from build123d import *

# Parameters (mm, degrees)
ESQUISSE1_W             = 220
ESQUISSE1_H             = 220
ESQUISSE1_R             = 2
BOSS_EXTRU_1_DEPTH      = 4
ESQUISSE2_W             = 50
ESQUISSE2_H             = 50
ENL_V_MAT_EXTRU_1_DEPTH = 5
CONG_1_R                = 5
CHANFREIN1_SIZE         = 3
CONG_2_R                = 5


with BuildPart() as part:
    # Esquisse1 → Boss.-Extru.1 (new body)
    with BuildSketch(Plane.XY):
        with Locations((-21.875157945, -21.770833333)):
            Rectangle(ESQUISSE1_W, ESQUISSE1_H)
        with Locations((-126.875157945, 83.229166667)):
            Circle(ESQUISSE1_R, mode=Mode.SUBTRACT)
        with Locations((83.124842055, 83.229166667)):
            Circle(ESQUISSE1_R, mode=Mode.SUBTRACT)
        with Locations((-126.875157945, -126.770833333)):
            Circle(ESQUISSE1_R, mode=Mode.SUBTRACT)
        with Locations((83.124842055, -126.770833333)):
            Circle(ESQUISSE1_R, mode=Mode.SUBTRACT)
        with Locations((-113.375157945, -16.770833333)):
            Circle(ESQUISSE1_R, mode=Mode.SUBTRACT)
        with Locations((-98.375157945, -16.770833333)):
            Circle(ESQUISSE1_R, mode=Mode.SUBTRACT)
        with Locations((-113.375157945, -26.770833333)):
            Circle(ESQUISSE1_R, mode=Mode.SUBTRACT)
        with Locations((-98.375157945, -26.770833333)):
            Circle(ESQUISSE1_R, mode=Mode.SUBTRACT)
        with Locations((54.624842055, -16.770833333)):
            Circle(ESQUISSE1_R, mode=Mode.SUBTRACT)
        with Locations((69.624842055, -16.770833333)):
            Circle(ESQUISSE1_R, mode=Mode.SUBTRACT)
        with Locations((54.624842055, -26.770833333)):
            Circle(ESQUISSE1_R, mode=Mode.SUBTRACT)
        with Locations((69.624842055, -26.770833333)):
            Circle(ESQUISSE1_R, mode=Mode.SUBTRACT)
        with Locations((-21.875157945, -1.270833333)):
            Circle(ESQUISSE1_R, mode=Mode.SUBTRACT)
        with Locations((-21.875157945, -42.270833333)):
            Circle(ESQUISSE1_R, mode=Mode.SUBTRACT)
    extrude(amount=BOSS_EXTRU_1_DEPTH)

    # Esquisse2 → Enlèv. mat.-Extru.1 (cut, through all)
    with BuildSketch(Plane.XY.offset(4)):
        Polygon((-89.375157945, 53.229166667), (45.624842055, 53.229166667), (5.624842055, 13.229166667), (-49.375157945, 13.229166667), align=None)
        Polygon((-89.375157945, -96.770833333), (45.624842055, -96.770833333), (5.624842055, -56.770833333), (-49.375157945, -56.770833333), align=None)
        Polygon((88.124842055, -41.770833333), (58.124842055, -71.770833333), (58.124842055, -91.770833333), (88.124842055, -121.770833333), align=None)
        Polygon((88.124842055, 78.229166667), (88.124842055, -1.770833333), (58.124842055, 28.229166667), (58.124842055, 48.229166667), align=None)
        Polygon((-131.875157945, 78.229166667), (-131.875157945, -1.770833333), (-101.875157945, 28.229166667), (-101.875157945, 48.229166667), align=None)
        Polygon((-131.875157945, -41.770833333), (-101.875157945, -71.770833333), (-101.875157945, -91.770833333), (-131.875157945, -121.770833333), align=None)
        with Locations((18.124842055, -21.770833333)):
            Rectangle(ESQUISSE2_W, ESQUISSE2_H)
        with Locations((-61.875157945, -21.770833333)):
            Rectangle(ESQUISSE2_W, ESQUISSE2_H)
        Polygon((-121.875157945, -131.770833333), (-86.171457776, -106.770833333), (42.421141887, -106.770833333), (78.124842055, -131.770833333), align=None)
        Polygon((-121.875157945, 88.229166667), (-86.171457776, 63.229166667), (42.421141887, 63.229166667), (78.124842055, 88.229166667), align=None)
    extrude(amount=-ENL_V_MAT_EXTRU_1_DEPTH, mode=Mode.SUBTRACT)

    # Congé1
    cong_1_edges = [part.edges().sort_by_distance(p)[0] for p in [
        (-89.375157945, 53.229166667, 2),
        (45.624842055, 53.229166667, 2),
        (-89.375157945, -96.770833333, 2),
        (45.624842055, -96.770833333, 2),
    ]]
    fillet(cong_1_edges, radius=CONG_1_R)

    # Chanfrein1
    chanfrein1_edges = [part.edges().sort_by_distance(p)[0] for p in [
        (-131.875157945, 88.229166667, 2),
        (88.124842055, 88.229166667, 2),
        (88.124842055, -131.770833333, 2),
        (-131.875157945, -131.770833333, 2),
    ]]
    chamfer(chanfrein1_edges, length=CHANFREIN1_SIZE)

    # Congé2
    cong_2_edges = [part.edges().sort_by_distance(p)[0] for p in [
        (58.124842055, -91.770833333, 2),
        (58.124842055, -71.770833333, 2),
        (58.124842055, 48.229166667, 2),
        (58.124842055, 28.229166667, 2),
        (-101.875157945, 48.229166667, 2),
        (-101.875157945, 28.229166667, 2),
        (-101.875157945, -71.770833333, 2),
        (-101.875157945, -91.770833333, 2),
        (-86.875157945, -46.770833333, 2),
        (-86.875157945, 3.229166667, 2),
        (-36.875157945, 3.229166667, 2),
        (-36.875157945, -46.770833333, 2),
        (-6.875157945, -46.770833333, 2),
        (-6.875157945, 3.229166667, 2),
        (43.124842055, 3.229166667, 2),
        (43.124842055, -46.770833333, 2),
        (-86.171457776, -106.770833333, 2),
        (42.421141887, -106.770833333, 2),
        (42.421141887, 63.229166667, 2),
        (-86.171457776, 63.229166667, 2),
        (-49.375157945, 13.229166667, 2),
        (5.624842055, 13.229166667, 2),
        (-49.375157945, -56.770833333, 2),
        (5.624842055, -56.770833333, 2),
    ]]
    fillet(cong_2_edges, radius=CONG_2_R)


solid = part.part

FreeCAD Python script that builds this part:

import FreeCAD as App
import Part
import Sketcher

V = App.Vector
Q = App.Units.Quantity


def edges_at(feature, points):
    """Names of the edges that pass closest to the given points."""
    edges = feature.Shape.Edges
    near = lambda p: min(range(len(edges)), key=lambda i: edges[i].distToShape(Part.Vertex(*p))[0])
    return sorted({f"Edge{near(p) + 1}" for p in points})

doc = App.newDocument("Part")
body = doc.addObject("PartDesign::Body", "Body")

sketch1 = body.newObject("Sketcher::SketchObject", "Sketch")
sketch1.AttachmentSupport = (doc.getObject("XY_Plane"), [""])
sketch1.MapMode = "FlatFace"
sketch1.addGeometry([
    Part.LineSegment(V(-131.9, 88.2, 0), V(-131.9, -131.8, 0)),
    Part.LineSegment(V(-131.9, -131.8, 0), V(88.1, -131.8, 0)),
    Part.LineSegment(V(88.1, -131.8, 0), V(88.1, 88.2, 0)),
    Part.LineSegment(V(88.1, 88.2, 0), V(-131.9, 88.2, 0)),
    Part.Circle(V(-126.9, -126.8, 0), V(0, 0, 1), 2),
    Part.Circle(V(-113.4, -26.8, 0), V(0, 0, 1), 2),
    Part.Circle(V(-98.4, -26.8, 0), V(0, 0, 1), 2),
    Part.Circle(V(-21.9, -42.3, 0), V(0, 0, 1), 2),
    Part.Circle(V(83.1, -126.8, 0), V(0, 0, 1), 2),
    Part.Circle(V(54.6, -26.8, 0), V(0, 0, 1), 2),
    Part.Circle(V(69.6, -26.8, 0), V(0, 0, 1), 2),
    Part.Circle(V(-113.4, -16.8, 0), V(0, 0, 1), 2),
    Part.Circle(V(-98.4, -16.8, 0), V(0, 0, 1), 2),
    Part.Circle(V(-21.9, -1.3, 0), V(0, 0, 1), 2),
    Part.Circle(V(-126.9, 83.2, 0), V(0, 0, 1), 2),
    Part.Circle(V(54.6, -16.8, 0), V(0, 0, 1), 2),
    Part.Circle(V(69.6, -16.8, 0), V(0, 0, 1), 2),
    Part.Circle(V(83.1, 83.2, 0), V(0, 0, 1), 2),
], False)
sketch1.addConstraint([
    Sketcher.Constraint("Coincident", 0, 2, 1, 1),
    Sketcher.Constraint("Coincident", 1, 2, 2, 1),
    Sketcher.Constraint("Coincident", 2, 2, 3, 1),
    Sketcher.Constraint("Coincident", 3, 2, 0, 1),
    Sketcher.Constraint("Vertical", 0),
    Sketcher.Constraint("Horizontal", 1),
    Sketcher.Constraint("Vertical", 2),
    Sketcher.Constraint("Horizontal", 3),
    Sketcher.Constraint("Equal", 4, 5),
    Sketcher.Constraint("Equal", 5, 6),
    Sketcher.Constraint("Equal", 6, 7),
    Sketcher.Constraint("Equal", 7, 8),
    Sketcher.Constraint("Equal", 8, 9),
    Sketcher.Constraint("Equal", 9, 10),
    Sketcher.Constraint("Equal", 10, 11),
    Sketcher.Constraint("Equal", 11, 12),
    Sketcher.Constraint("Equal", 12, 13),
    Sketcher.Constraint("Equal", 13, 14),
    Sketcher.Constraint("Equal", 14, 15),
    Sketcher.Constraint("Equal", 15, 16),
    Sketcher.Constraint("Equal", 16, 17),
    Sketcher.Constraint("Horizontal", 5, 3, 6, 3),
    Sketcher.Constraint("Horizontal", 4, 3, 8, 3),
    Sketcher.Constraint("Horizontal", 6, 3, 9, 3),
    Sketcher.Constraint("Horizontal", 9, 3, 10, 3),
    Sketcher.Constraint("Horizontal", 11, 3, 12, 3),
    Sketcher.Constraint("Horizontal", 12, 3, 15, 3),
    Sketcher.Constraint("Horizontal", 15, 3, 16, 3),
    Sketcher.Constraint("Horizontal", 14, 3, 17, 3),
    Sketcher.Constraint("Vertical", 5, 3, 11, 3),
    Sketcher.Constraint("Vertical", 6, 3, 12, 3),
    Sketcher.Constraint("Vertical", 7, 3, 13, 3),
    Sketcher.Constraint("Vertical", 4, 3, 14, 3),
    Sketcher.Constraint("Vertical", 9, 3, 15, 3),
    Sketcher.Constraint("Vertical", 10, 3, 16, 3),
    Sketcher.Constraint("Vertical", 8, 3, 17, 3),
    Sketcher.Constraint("Equal", 3, 0),
    Sketcher.Constraint("Diameter", 4, 4.0),
    Sketcher.Constraint("DistanceX", 1, 1, 1, 2, 220.0),
    Sketcher.Constraint("DistanceY", 4, 3, 5, 3, 100.0),
    Sketcher.Constraint("DistanceX", 5, 3, 6, 3, 15.0),
    Sketcher.Constraint("DistanceX", 4, 3, 7, 3, 105.0),
    Sketcher.Constraint("DistanceX", 7, 3, 8, 3, 105.0),
    Sketcher.Constraint("DistanceX", 6, 3, 9, 3, 153.0),
    Sketcher.Constraint("DistanceX", 9, 3, 10, 3, 15.0),
    Sketcher.Constraint("DistanceY", 5, 3, 11, 3, 10.0),
    Sketcher.Constraint("DistanceY", 7, 3, 13, 3, 41.0),
    Sketcher.Constraint("DistanceY", 11, 3, 14, 3, 100.0),
    Sketcher.Constraint("DistanceX", 0, 2, 4, 3, 5.0),
    Sketcher.Constraint("DistanceY", 0, 2, 4, 3, 5.0),
    Sketcher.Constraint("DistanceX", 4, 3, 5, 3, 13.5),
    Sketcher.Constraint("DistanceY", 7, 3, 6, 3, 15.5),
    Sketcher.Constraint("DistanceX", 4, 3, -1, 1, 126.875158),
    Sketcher.Constraint("DistanceY", 4, 3, -1, 1, 126.770833),
])
pad1 = body.newObject("PartDesign::Pad", "Pad")
pad1.Profile = sketch1
pad1.Length = 4

sketch2 = body.newObject("Sketcher::SketchObject", "Sketch001")
sketch2.AttachmentSupport = (doc.getObject("XY_Plane"), [""])
sketch2.MapMode = "FlatFace"
sketch2.AttachmentOffset = App.Placement(V(0, 0, 4), App.Rotation())
sketch2.addGeometry([
    Part.LineSegment(V(46, 53, 0), V(-89, 53, 0)),
    Part.LineSegment(V(-89, 53, 0), V(-49, 13, 0)),
    Part.LineSegment(V(-49, 13, 0), V(6, 13, 0)),
    Part.LineSegment(V(6, 13, 0), V(46, 53, 0)),
    Part.LineSegment(V(-89, -97, 0), V(46, -97, 0)),
    Part.LineSegment(V(46, -97, 0), V(6, -57, 0)),
    Part.LineSegment(V(6, -57, 0), V(-49, -57, 0)),
    Part.LineSegment(V(-49, -57, 0), V(-89, -97, 0)),
    Part.LineSegment(V(88, -42, 0), V(58, -72, 0)),
    Part.LineSegment(V(58, -72, 0), V(58, -92, 0)),
    Part.LineSegment(V(58, -92, 0), V(88, -122, 0)),
    Part.LineSegment(V(88, -122, 0), V(88, -42, 0)),
    Part.LineSegment(V(88, -2, 0), V(88, 78, 0)),
    Part.LineSegment(V(88, 78, 0), V(58, 48, 0)),
    Part.LineSegment(V(58, 48, 0), V(58, 28, 0)),
    Part.LineSegment(V(58, 28, 0), V(88, -2, 0)),
    Part.LineSegment(V(-132, 78, 0), V(-132, -2, 0)),
    Part.LineSegment(V(-132, -2, 0), V(-102, 28, 0)),
    Part.LineSegment(V(-102, 28, 0), V(-102, 48, 0)),
    Part.LineSegment(V(-102, 48, 0), V(-132, 78, 0)),
    Part.LineSegment(V(-102, -72, 0), V(-132, -42, 0)),
    Part.LineSegment(V(-132, -42, 0), V(-132, -122, 0)),
    Part.LineSegment(V(-132, -122, 0), V(-102, -92, 0)),
    Part.LineSegment(V(-102, -92, 0), V(-102, -72, 0)),
    Part.LineSegment(V(-7, 3, 0), V(-7, -47, 0)),
    Part.LineSegment(V(-7, -47, 0), V(43, -47, 0)),
    Part.LineSegment(V(43, -47, 0), V(43, 3, 0)),
    Part.LineSegment(V(43, 3, 0), V(-7, 3, 0)),
    Part.LineSegment(V(-87, 3, 0), V(-87, -47, 0)),
    Part.LineSegment(V(-87, -47, 0), V(-37, -47, 0)),
    Part.LineSegment(V(-37, -47, 0), V(-37, 3, 0)),
    Part.LineSegment(V(-37, 3, 0), V(-87, 3, 0)),
    Part.LineSegment(V(-86, -107, 0), V(-122, -132, 0)),
    Part.LineSegment(V(-122, -132, 0), V(78, -132, 0)),
    Part.LineSegment(V(78, -132, 0), V(42, -107, 0)),
    Part.LineSegment(V(42, -107, 0), V(-86, -107, 0)),
    Part.LineSegment(V(-122, 88, 0), V(-86, 63, 0)),
    Part.LineSegment(V(-86, 63, 0), V(42, 63, 0)),
    Part.LineSegment(V(42, 63, 0), V(78, 88, 0)),
    Part.LineSegment(V(78, 88, 0), V(-122, 88, 0)),
], False)
sketch2.addConstraint([
    Sketcher.Constraint("Coincident", 0, 2, 1, 1),
    Sketcher.Constraint("Coincident", 1, 2, 2, 1),
    Sketcher.Constraint("Coincident", 2, 2, 3, 1),
    Sketcher.Constraint("Coincident", 3, 2, 0, 1),
    Sketcher.Constraint("Coincident", 4, 2, 5, 1),
    Sketcher.Constraint("Coincident", 5, 2, 6, 1),
    Sketcher.Constraint("Coincident", 6, 2, 7, 1),
    Sketcher.Constraint("Coincident", 7, 2, 4, 1),
    Sketcher.Constraint("Coincident", 8, 2, 9, 1),
    Sketcher.Constraint("Coincident", 9, 2, 10, 1),
    Sketcher.Constraint("Coincident", 10, 2, 11, 1),
    Sketcher.Constraint("Coincident", 11, 2, 8, 1),
    Sketcher.Constraint("Coincident", 12, 2, 13, 1),
    Sketcher.Constraint("Coincident", 13, 2, 14, 1),
    Sketcher.Constraint("Coincident", 14, 2, 15, 1),
    Sketcher.Constraint("Coincident", 15, 2, 12, 1),
    Sketcher.Constraint("Coincident", 16, 2, 17, 1),
    Sketcher.Constraint("Coincident", 17, 2, 18, 1),
    Sketcher.Constraint("Coincident", 18, 2, 19, 1),
    Sketcher.Constraint("Coincident", 19, 2, 16, 1),
    Sketcher.Constraint("Coincident", 20, 2, 21, 1),
    Sketcher.Constraint("Coincident", 21, 2, 22, 1),
    Sketcher.Constraint("Coincident", 22, 2, 23, 1),
    Sketcher.Constraint("Coincident", 23, 2, 20, 1),
    Sketcher.Constraint("Coincident", 24, 2, 25, 1),
    Sketcher.Constraint("Coincident", 25, 2, 26, 1),
    Sketcher.Constraint("Coincident", 26, 2, 27, 1),
    Sketcher.Constraint("Coincident", 27, 2, 24, 1),
    Sketcher.Constraint("Coincident", 28, 2, 29, 1),
    Sketcher.Constraint("Coincident", 29, 2, 30, 1),
    Sketcher.Constraint("Coincident", 30, 2, 31, 1),
    Sketcher.Constraint("Coincident", 31, 2, 28, 1),
    Sketcher.Constraint("Coincident", 32, 2, 33, 1),
    Sketcher.Constraint("Coincident", 33, 2, 34, 1),
    Sketcher.Constraint("Coincident", 34, 2, 35, 1),
    Sketcher.Constraint("Coincident", 35, 2, 32, 1),
    Sketcher.Constraint("Coincident", 36, 2, 37, 1),
    Sketcher.Constraint("Coincident", 37, 2, 38, 1),
    Sketcher.Constraint("Coincident", 38, 2, 39, 1),
    Sketcher.Constraint("Coincident", 39, 2, 36, 1),
    Sketcher.Constraint("Horizontal", 0),
    Sketcher.Constraint("Horizontal", 2),
    Sketcher.Constraint("Horizontal", 4),
    Sketcher.Constraint("Horizontal", 6),
    Sketcher.Constraint("Vertical", 9),
    Sketcher.Constraint("Vertical", 11),
    Sketcher.Constraint("Vertical", 12),
    Sketcher.Constraint("Vertical", 14),
    Sketcher.Constraint("Vertical", 16),
    Sketcher.Constraint("Vertical", 18),
    Sketcher.Constraint("Vertical", 21),
    Sketcher.Constraint("Vertical", 23),
    Sketcher.Constraint("Vertical", 24),
    Sketcher.Constraint("Horizontal", 25),
    Sketcher.Constraint("Vertical", 26),
    Sketcher.Constraint("Horizontal", 27),
    Sketcher.Constraint("Vertical", 28),
    Sketcher.Constraint("Horizontal", 29),
    Sketcher.Constraint("Vertical", 30),
    Sketcher.Constraint("Horizontal", 31),
    Sketcher.Constraint("Horizontal", 33),
    Sketcher.Constraint("Horizontal", 35),
    Sketcher.Constraint("Horizontal", 37),
    Sketcher.Constraint("Horizontal", 39),
    Sketcher.Constraint("Perpendicular", 1, 3),
    Sketcher.Constraint("Perpendicular", 3, 5),
    Sketcher.Constraint("Perpendicular", 5, 7),
    Sketcher.Constraint("Parallel", 7, 8),
    Sketcher.Constraint("Perpendicular", 8, 10),
    Sketcher.Constraint("Perpendicular", 10, 13),
    Sketcher.Constraint("Perpendicular", 13, 15),
    Sketcher.Constraint("Perpendicular", 15, 17),
    Sketcher.Constraint("Perpendicular", 17, 19),
    Sketcher.Constraint("Parallel", 19, 20),
    Sketcher.Constraint("Perpendicular", 20, 22),
    Sketcher.Constraint("Parallel", 34, 36),
    Sketcher.Constraint("Parallel", 32, 38),
    Sketcher.Constraint("Horizontal", 15, 2, 16, 2),
    Sketcher.Constraint("Horizontal", 14, 2, 17, 2),
    Sketcher.Constraint("Horizontal", 13, 2, 18, 2),
    Sketcher.Constraint("Horizontal", 12, 2, 19, 2),
    Sketcher.Constraint("Horizontal", 11, 2, 20, 2),
    Sketcher.Constraint("Horizontal", 10, 2, 21, 2),
    Sketcher.Constraint("Horizontal", 9, 2, 22, 2),
    Sketcher.Constraint("Horizontal", 25, 2, 28, 2),
    Sketcher.Constraint("Horizontal", 27, 2, 30, 2),
    Sketcher.Constraint("Vertical", 3, 2, 4, 2),
    Sketcher.Constraint("Vertical", 2, 2, 5, 2),
    Sketcher.Constraint("Vertical", 1, 2, 6, 2),
    Sketcher.Constraint("Vertical", 11, 2, 12, 2),
    Sketcher.Constraint("Vertical", 9, 2, 13, 2),
    Sketcher.Constraint("Vertical", 19, 2, 20, 2),
    Sketcher.Constraint("Vertical", 35, 2, 36, 2),
    Sketcher.Constraint("Vertical", 34, 2, 37, 2),
    Sketcher.Constraint("Vertical", 33, 2, 38, 2),
    Sketcher.Constraint("Vertical", 32, 2, 39, 2),
    Sketcher.Constraint("Equal", 27, 29),
    Sketcher.Constraint("Equal", 11, 12),
    Sketcher.Constraint("Equal", 31, 24),
    Sketcher.Constraint("DistanceX", 0, 2, 0, 1, 135.0),
    Sketcher.Constraint("DistanceX", 2, 1, 2, 2, 55.0),
    Sketcher.Constraint("DistanceX", 25, 1, 25, 2, 50.0),
    Sketcher.Constraint("DistanceX", 33, 1, 33, 2, 200.0),
    Sketcher.Constraint("DistanceY", 9, 2, 9, 1, 20.0),
    Sketcher.Constraint("DistanceY", 11, 1, 11, 2, 80.0),
    Sketcher.Constraint("Angle", 32, Q("-145 deg")),
    Sketcher.Constraint("DistanceY", 4, 2, 2, 2, 110.0),
    Sketcher.Constraint("DistanceY", 4, 2, 8, 2, 25.0),
    Sketcher.Constraint("DistanceY", 3, 2, 12, 2, 25.0),
    Sketcher.Constraint("DistanceY", 5, 2, 24, 2, 10.0),
    Sketcher.Constraint("DistanceX", 24, 2, 8, 2, 65.0),
    Sketcher.Constraint("DistanceX", 23, 2, 28, 2, 15.0),
    Sketcher.Constraint("DistanceX", 29, 2, 24, 2, 30.0),
    Sketcher.Constraint("DistanceX", 21, 2, 32, 2, 10.0),
    Sketcher.Constraint("DistanceY", 32, 2, 21, 2, 10.0),
    Sketcher.Constraint("DistanceY", 34, 2, 4, 2, 10.0),
    Sketcher.Constraint("DistanceY", 0, 2, 36, 2, 10.0),
    Sketcher.Constraint("DistanceX", 4, 2, 8, 2, 12.5),
    Sketcher.Constraint("DistanceX", -1, 1, 34, 2, 42.421142),
    Sketcher.Constraint("DistanceY", -1, 1, 0, 2, 53.229167),
])
pocket1 = body.newObject("PartDesign::Pocket", "Pocket")
pocket1.Profile = sketch2
pocket1.Type = "ThroughAll"
doc.recompute()

fillet = body.newObject("PartDesign::Fillet", "Fillet")
fillet.Base = (pocket1, edges_at(pocket1, [
    (-89.375, 53.229, 2),
    (45.625, 53.229, 2),
    (-89.375, -96.771, 2),
    (45.625, -96.771, 2),
]))
fillet.Radius = 5
doc.recompute()

chamfer = body.newObject("PartDesign::Chamfer", "Chamfer")
chamfer.Base = (fillet, edges_at(fillet, [
    (-131.875, 88.229, 2),
    (88.125, 88.229, 2),
    (88.125, -131.771, 2),
    (-131.875, -131.771, 2),
]))
chamfer.Size = 3
doc.recompute()

fillet2 = body.newObject("PartDesign::Fillet", "Fillet001")
fillet2.Base = (chamfer, edges_at(chamfer, [
    (58.125, -91.771, 2),
    (58.125, -71.771, 2),
    (58.125, 48.229, 2),
    (58.125, 28.229, 2),
    (-101.875, 48.229, 2),
    (-101.875, 28.229, 2),
    (-101.875, -71.771, 2),
    (-101.875, -91.771, 2),
    (-86.875, -46.771, 2),
    (-86.875, 3.229, 2),
    (-36.875, 3.229, 2),
    (-36.875, -46.771, 2),
    (-6.875, -46.771, 2),
    (-6.875, 3.229, 2),
    (43.125, 3.229, 2),
    (43.125, -46.771, 2),
    (-86.171, -106.771, 2),
    (42.421, -106.771, 2),
    (42.421, 63.229, 2),
    (-86.171, 63.229, 2),
    (-49.375, 13.229, 2),
    (5.625, 13.229, 2),
    (-49.375, -56.771, 2),
    (5.625, -56.771, 2),
]))
fillet2.Radius = 5

doc.recompute()
